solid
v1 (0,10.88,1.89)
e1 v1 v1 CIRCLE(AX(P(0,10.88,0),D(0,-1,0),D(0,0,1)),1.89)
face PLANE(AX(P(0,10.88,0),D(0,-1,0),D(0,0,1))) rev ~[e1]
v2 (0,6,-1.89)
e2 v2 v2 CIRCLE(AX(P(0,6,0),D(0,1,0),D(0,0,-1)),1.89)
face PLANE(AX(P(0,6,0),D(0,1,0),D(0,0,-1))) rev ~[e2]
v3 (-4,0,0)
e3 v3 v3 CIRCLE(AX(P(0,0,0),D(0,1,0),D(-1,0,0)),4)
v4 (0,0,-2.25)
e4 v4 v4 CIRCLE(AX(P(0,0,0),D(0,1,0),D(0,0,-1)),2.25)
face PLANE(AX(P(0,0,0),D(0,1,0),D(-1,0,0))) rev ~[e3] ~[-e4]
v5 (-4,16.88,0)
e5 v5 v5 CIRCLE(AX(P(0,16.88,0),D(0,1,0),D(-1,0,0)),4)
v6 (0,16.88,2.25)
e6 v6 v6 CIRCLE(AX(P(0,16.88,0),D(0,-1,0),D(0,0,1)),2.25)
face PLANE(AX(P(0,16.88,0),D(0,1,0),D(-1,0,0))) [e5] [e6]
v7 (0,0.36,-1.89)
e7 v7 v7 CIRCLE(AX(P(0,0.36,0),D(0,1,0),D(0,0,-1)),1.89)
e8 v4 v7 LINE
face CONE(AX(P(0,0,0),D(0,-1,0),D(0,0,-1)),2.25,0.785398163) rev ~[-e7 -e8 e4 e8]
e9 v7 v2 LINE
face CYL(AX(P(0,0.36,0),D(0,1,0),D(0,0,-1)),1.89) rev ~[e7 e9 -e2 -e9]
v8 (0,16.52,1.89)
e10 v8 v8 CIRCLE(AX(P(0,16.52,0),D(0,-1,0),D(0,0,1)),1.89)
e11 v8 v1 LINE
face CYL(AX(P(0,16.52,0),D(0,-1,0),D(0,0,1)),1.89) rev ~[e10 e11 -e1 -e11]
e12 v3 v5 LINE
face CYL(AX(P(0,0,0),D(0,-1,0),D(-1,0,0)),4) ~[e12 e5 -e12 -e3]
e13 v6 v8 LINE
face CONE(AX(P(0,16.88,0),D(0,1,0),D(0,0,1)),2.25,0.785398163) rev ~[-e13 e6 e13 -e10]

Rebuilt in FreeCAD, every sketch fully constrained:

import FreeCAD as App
import Part
import Sketcher

V = App.Vector

doc = App.newDocument("Part")
body = doc.addObject("PartDesign::Body", "Body")

# Sketch on XZ plane
sketch1 = body.newObject("Sketcher::SketchObject", "Sketch")
sketch1.AttachmentSupport = (doc.getObject("XZ_Plane"), [""])
sketch1.MapMode = "FlatFace"
sketch1.addGeometry(Part.Circle(V(0, 0, 0), V(0, 0, 1), 4), False)
sketch1.addConstraint([
    Sketcher.Constraint("Coincident", 0, 3, -1, 1),
    Sketcher.Constraint("Diameter", 0, 8.0),
])
pad1 = body.newObject("PartDesign::Pad", "Pad")
pad1.Profile = sketch1
pad1.Length = 16.88
pad1.Reversed = True

# Sketch on XZ plane
sketch2 = body.newObject("Sketcher::SketchObject", "Sketch001")
sketch2.AttachmentSupport = (doc.getObject("XZ_Plane"), [""])
sketch2.MapMode = "FlatFace"
sketch2.addGeometry(Part.Circle(V(0, 0, 0), V(0, 0, 1), 1.9), False)
sketch2.addConstraint([
    Sketcher.Constraint("Coincident", 0, 3, -1, 1),
    Sketcher.Constraint("Diameter", 0, 3.78),
])
doc.recompute()
hole = body.newObject("PartDesign::Hole", "Hole")
hole.Profile = sketch2
hole.ThreadType = "None"
hole.Diameter = 3.78
hole.DepthType = "Dimension"
hole.Depth = 6
hole.DrillPoint = "Flat"
hole.HoleCutType = "Countersink"
hole.HoleCutDiameter = 4.5
hole.HoleCutCountersinkAngle = 90

# Sketch on XZ plane
sketch3 = body.newObject("Sketcher::SketchObject", "Sketch002")
sketch3.AttachmentSupport = (doc.getObject("XZ_Plane"), [""])
sketch3.MapMode = "FlatFace"
sketch3.AttachmentOffset = App.Placement(V(0, 0, -16.88), App.Rotation())
sketch3.addGeometry(Part.Circle(V(0, 0, 0), V(0, 0, 1), 1.9), False)
sketch3.addConstraint([
    Sketcher.Constraint("Coincident", 0, 3, -1, 1),
    Sketcher.Constraint("Diameter", 0, 3.78),
])
doc.recompute()
hole2 = body.newObject("PartDesign::Hole", "Hole001")
hole2.Profile = sketch3
hole2.ThreadType = "None"
hole2.Diameter = 3.78
hole2.DepthType = "Dimension"
hole2.Depth = 6
hole2.DrillPoint = "Flat"
hole2.HoleCutType = "Countersink"
hole2.HoleCutDiameter = 4.5
hole2.HoleCutCountersinkAngle = 90
hole2.Reversed = True

doc.recompute()
